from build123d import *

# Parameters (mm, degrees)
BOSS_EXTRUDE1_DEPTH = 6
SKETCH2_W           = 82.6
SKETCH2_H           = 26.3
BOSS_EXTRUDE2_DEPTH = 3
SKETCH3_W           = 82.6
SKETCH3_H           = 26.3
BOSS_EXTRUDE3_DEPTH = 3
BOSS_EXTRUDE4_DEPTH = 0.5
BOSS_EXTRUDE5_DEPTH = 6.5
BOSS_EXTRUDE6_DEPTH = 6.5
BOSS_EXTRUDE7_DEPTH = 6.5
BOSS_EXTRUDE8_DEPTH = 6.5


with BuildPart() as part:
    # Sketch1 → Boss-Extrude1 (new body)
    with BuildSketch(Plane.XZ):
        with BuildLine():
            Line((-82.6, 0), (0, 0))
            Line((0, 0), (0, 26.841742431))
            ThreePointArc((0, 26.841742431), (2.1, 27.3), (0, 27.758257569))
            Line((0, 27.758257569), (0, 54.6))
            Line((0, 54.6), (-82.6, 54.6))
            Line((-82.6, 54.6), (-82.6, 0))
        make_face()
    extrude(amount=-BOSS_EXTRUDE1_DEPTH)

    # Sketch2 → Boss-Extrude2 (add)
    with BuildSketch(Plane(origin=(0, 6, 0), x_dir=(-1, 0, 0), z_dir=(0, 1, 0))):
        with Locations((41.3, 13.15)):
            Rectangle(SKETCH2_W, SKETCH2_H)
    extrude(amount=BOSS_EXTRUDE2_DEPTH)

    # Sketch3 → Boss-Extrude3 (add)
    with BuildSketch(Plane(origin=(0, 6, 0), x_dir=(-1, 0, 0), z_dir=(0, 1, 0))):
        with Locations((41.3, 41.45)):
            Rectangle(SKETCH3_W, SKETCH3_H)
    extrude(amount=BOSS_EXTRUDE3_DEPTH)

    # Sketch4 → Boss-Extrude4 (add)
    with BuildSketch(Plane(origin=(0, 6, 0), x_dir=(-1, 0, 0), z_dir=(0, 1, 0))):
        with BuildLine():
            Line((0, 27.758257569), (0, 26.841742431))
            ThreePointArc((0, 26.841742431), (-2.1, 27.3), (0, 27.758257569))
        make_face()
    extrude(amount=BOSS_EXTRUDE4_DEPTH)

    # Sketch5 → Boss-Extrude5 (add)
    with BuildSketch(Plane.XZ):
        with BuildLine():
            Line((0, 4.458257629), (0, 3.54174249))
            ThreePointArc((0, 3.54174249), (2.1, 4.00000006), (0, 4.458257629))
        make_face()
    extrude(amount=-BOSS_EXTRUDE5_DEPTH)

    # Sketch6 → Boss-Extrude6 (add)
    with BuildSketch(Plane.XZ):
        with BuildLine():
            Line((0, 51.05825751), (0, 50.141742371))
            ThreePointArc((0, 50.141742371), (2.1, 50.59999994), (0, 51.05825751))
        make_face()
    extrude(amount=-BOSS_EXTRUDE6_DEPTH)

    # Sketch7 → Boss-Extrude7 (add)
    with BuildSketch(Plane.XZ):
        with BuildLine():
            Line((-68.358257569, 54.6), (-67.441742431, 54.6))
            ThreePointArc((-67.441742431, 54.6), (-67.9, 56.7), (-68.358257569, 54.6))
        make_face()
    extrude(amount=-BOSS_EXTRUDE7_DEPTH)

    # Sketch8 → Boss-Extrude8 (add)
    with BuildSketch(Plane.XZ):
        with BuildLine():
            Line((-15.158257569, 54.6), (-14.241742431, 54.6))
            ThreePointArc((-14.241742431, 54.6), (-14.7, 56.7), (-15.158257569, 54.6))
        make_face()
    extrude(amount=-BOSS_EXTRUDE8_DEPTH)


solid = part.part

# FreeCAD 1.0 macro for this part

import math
import FreeCAD as App
import Part
import Sketcher

V = App.Vector
Q = App.Units.Quantity


def add_polygon(sketch, points):
    """Adds a closed chain of lines whose ends are joined by coincident constraints."""
    first, n = sketch.GeometryCount, len(points)
    for a, b in zip(points, points[1:] + points[:1]):
        sketch.addGeometry(Part.LineSegment(App.Vector(*a, 0), App.Vector(*b, 0)), False)
    for i in range(n):
        sketch.addConstraint(Sketcher.Constraint("Coincident", first + i, 2, first + (i + 1) % n, 1))

doc = App.newDocument("Part")
params = doc.addObject("Spreadsheet::Sheet", "Params")
for row, (alias, value) in enumerate([
    ("sketch1_radius", "1.1 mm"),
    ("sketch1_width", "82.6 mm"),
    ("sketch1_height", "54.6 mm"),
    ("pad1_length", "6 mm"),
    ("sketch2_width", "82.6 mm"),
    ("sketch2_height", "26.3 mm"),
    ("pad2_length", "3 mm"),
    ("sketch3_width", "82.6 mm"),
    ("sketch3_height", "26.3 mm"),
    ("pad3_length", "3 mm"),
    ("sketch4_radius", "1.1 mm"),
    ("pad4_length", "0.5 mm"),
    ("sketch5_radius", "1.1 mm"),
    ("pad5_length", "6.5 mm"),
    ("sketch6_radius", "1.1 mm"),
    ("pad6_length", "6.5 mm"),
    ("sketch7_radius", "1.1 mm"),
    ("pad7_length", "6.5 mm"),
    ("sketch8_radius", "1.1 mm"),
    ("pad8_length", "6.5 mm"),
], start=1):
    params.set(f"A{row}", alias)
    params.set(f"B{row}", "=" + value)
    params.setAlias(f"B{row}", alias)

body = doc.addObject("PartDesign::Body", "Body")

sketch1 = body.newObject("Sketcher::SketchObject", "Sketch")
sketch1.AttachmentSupport = (doc.getObject("XZ_Plane"), [""])
sketch1.MapMode = "FlatFace"
sketch1.addGeometry(Part.LineSegment(V(-82.6, 0, 0), V(0, 0, 0)), False)
sketch1.addGeometry(Part.LineSegment(V(0, 0, 0), V(0, 26.8, 0)), False)
sketch1.addGeometry(Part.ArcOfCircle(Part.Circle(V(1, 27.3, 0), V(0, 0, 1), 1.1), math.radians(-155), math.radians(155)), False)
sketch1.addGeometry(Part.LineSegment(V(0, 27.8, 0), V(0, 54.6, 0)), False)
sketch1.addGeometry(Part.LineSegment(V(0, 54.6, 0), V(-82.6, 54.6, 0)), False)
sketch1.addGeometry(Part.LineSegment(V(-82.6, 54.6, 0), V(-82.6, 0, 0)), False)
sketch1.addConstraint(Sketcher.Constraint("Coincident", 0, 2, 1, 1))
sketch1.addConstraint(Sketcher.Constraint("Coincident", 1, 2, 2, 1))
sketch1.addConstraint(Sketcher.Constraint("Coincident", 2, 2, 3, 1))
sketch1.addConstraint(Sketcher.Constraint("Coincident", 3, 2, 4, 1))
sketch1.addConstraint(Sketcher.Constraint("Coincident", 4, 2, 5, 1))
sketch1.addConstraint(Sketcher.Constraint("Coincident", 5, 2, 0, 1))
sketch1.addConstraint(Sketcher.Constraint("Horizontal", 0))
sketch1.addConstraint(Sketcher.Constraint("Vertical", 1))
sketch1.addConstraint(Sketcher.Constraint("Vertical", 3))
sketch1.addConstraint(Sketcher.Constraint("Horizontal", 4))
sketch1.addConstraint(Sketcher.Constraint("Vertical", 5))
sketch1.addConstraint(Sketcher.Constraint("Coincident", 0, 2, -1, 1))
sketch1.addConstraint(Sketcher.Constraint("PointOnObject", 2, 2, -2))
sketch1.addConstraint(Sketcher.Constraint("Equal", 1, 3))
sketch1.addConstraint(Sketcher.Constraint("Radius", 2, Q("1.1 mm")))
sketch1.addConstraint(Sketcher.Constraint("DistanceX", 0, 1, 0, 2, Q("82.6 mm")))
sketch1.addConstraint(Sketcher.Constraint("DistanceY", 5, 2, 5, 1, Q("54.6 mm")))
sketch1.addConstraint(Sketcher.Constraint("DistanceX", -1, 1, 2, 3, Q("1 mm")))
sketch1.setExpression("Constraints[14]", "Params.sketch1_radius")
sketch1.setExpression("Constraints[15]", "Params.sketch1_width")
sketch1.setExpression("Constraints[16]", "Params.sketch1_height")
pad1 = body.newObject("PartDesign::Pad", "Pad")
pad1.Profile = sketch1
pad1.setExpression("Length", "Params.pad1_length")
pad1.Reversed = True

sketch2 = body.newObject("Sketcher::SketchObject", "Sketch001")
sketch2.AttachmentSupport = (doc.getObject("XZ_Plane"), [""])
sketch2.MapMode = "FlatFace"
sketch2.AttachmentOffset = App.Placement(V(0, 0, -6), App.Rotation())
add_polygon(sketch2, [(0, 26), (0, 0), (-83, 0), (-83, 26)])
sketch2.addConstraint(Sketcher.Constraint("Vertical", 0))
sketch2.addConstraint(Sketcher.Constraint("Horizontal", 1))
sketch2.addConstraint(Sketcher.Constraint("Vertical", 2))
sketch2.addConstraint(Sketcher.Constraint("Horizontal", 3))
sketch2.addConstraint(Sketcher.Constraint("Coincident", 0, 2, -1, 1))
sketch2.addConstraint(Sketcher.Constraint("DistanceX", 1, 2, 1, 1, Q("82.6 mm")))
sketch2.addConstraint(Sketcher.Constraint("DistanceY", 0, 2, 0, 1, Q("26.3 mm")))
sketch2.setExpression("Constraints[9]", "Params.sketch2_width")
sketch2.setExpression("Constraints[10]", "Params.sketch2_height")
pad2 = body.newObject("PartDesign::Pad", "Pad001")
pad2.Profile = sketch2
pad2.setExpression("Length", "Params.pad2_length")
pad2.Reversed = True

sketch3 = body.newObject("Sketcher::SketchObject", "Sketch002")
sketch3.AttachmentSupport = (doc.getObject("XZ_Plane"), [""])
sketch3.MapMode = "FlatFace"
sketch3.AttachmentOffset = App.Placement(V(0, 0, -6), App.Rotation())
add_polygon(sketch3, [(0, 55), (0, 28), (-83, 28), (-83, 55)])
sketch3.addConstraint(Sketcher.Constraint("Vertical", 0))
sketch3.addConstraint(Sketcher.Constraint("Horizontal", 1))
sketch3.addConstraint(Sketcher.Constraint("Vertical", 2))
sketch3.addConstraint(Sketcher.Constraint("Horizontal", 3))
sketch3.addConstraint(Sketcher.Constraint("PointOnObject", 0, 2, -2))
sketch3.addConstraint(Sketcher.Constraint("DistanceX", 1, 2, 1, 1, Q("82.6 mm")))
sketch3.addConstraint(Sketcher.Constraint("DistanceY", 0, 2, 0, 1, Q("26.3 mm")))
sketch3.addConstraint(Sketcher.Constraint("DistanceY", -1, 1, 0, 2, Q("28.3 mm")))
sketch3.setExpression("Constraints[9]", "Params.sketch3_width")
sketch3.setExpression("Constraints[10]", "Params.sketch3_height")
pad3 = body.newObject("PartDesign::Pad", "Pad002")
pad3.Profile = sketch3
pad3.setExpression("Length", "Params.pad3_length")
pad3.Reversed = True

sketch4 = body.newObject("Sketcher::SketchObject", "Sketch003")
sketch4.AttachmentSupport = (doc.getObject("XZ_Plane"), [""])
sketch4.MapMode = "FlatFace"
sketch4.AttachmentOffset = App.Placement(V(0, 0, -6), App.Rotation())
sketch4.addGeometry(Part.LineSegment(V(0, 26.8, 0), V(0, 27.8, 0)), False)
sketch4.addGeometry(Part.ArcOfCircle(Part.Circle(V(1, 27.3, 0), V(0, 0, 1), 1.1), math.radians(-155), math.radians(155)), False)
sketch4.addConstraint(Sketcher.Constraint("Coincident", 0, 1, 1, 1))
sketch4.addConstraint(Sketcher.Constraint("Coincident", 1, 2, 0, 2))
sketch4.addConstraint(Sketcher.Constraint("Vertical", 0))
sketch4.addConstraint(Sketcher.Constraint("PointOnObject", 0, 1, -2))
sketch4.addConstraint(Sketcher.Constraint("Radius", 1, Q("1.1 mm")))
sketch4.addConstraint(Sketcher.Constraint("DistanceX", -1, 1, 1, 3, Q("1 mm")))
sketch4.addConstraint(Sketcher.Constraint("DistanceY", -1, 1, 1, 3, Q("27.3 mm")))
sketch4.setExpression("Constraints[4]", "Params.sketch4_radius")
pad4 = body.newObject("PartDesign::Pad", "Pad003")
pad4.Profile = sketch4
pad4.setExpression("Length", "Params.pad4_length")
pad4.Reversed = True

sketch5 = body.newObject("Sketcher::SketchObject", "Sketch004")
sketch5.AttachmentSupport = (doc.getObject("XZ_Plane"), [""])
sketch5.MapMode = "FlatFace"
sketch5.addGeometry(Part.LineSegment(V(0, 4.5, 0), V(0, 3.5, 0)), False)
sketch5.addGeometry(Part.ArcOfCircle(Part.Circle(V(1, 4, 0), V(0, 0, 1), 1.1), math.radians(-155), math.radians(155)), False)
sketch5.addConstraint(Sketcher.Constraint("Coincident", 0, 1, 1, 2))
sketch5.addConstraint(Sketcher.Constraint("Coincident", 1, 1, 0, 2))
sketch5.addConstraint(Sketcher.Constraint("Vertical", 0))
sketch5.addConstraint(Sketcher.Constraint("PointOnObject", 0, 1, -2))
sketch5.addConstraint(Sketcher.Constraint("Radius", 1, Q("1.1 mm")))
sketch5.addConstraint(Sketcher.Constraint("DistanceX", -1, 1, 1, 3, Q("1 mm")))
sketch5.addConstraint(Sketcher.Constraint("DistanceY", -1, 1, 1, 3, Q("4 mm")))
sketch5.setExpression("Constraints[4]", "Params.sketch5_radius")
pad5 = body.newObject("PartDesign::Pad", "Pad004")
pad5.Profile = sketch5
pad5.setExpression("Length", "Params.pad5_length")
pad5.Reversed = True

sketch6 = body.newObject("Sketcher::SketchObject", "Sketch005")
sketch6.AttachmentSupport = (doc.getObject("XZ_Plane"), [""])
sketch6.MapMode = "FlatFace"
sketch6.addGeometry(Part.LineSegment(V(0, 51.1, 0), V(0, 50.1, 0)), False)
sketch6.addGeometry(Part.ArcOfCircle(Part.Circle(V(1, 50.6, 0), V(0, 0, 1), 1.1), math.radians(-155), math.radians(155)), False)
sketch6.addConstraint(Sketcher.Constraint("Coincident", 0, 1, 1, 2))
sketch6.addConstraint(Sketcher.Constraint("Coincident", 1, 1, 0, 2))
sketch6.addConstraint(Sketcher.Constraint("Vertical", 0))
sketch6.addConstraint(Sketcher.Constraint("PointOnObject", 0, 1, -2))
sketch6.addConstraint(Sketcher.Constraint("Radius", 1, Q("1.1 mm")))
sketch6.addConstraint(Sketcher.Constraint("DistanceX", -1, 1, 1, 3, Q("1 mm")))
sketch6.addConstraint(Sketcher.Constraint("DistanceY", -1, 1, 1, 3, Q("50.6 mm")))
sketch6.setExpression("Constraints[4]", "Params.sketch6_radius")
pad6 = body.newObject("PartDesign::Pad", "Pad005")
pad6.Profile = sketch6
pad6.setExpression("Length", "Params.pad6_length")
pad6.Reversed = True

sketch7 = body.newObject("Sketcher::SketchObject", "Sketch006")
sketch7.AttachmentSupport = (doc.getObject("XZ_Plane"), [""])
sketch7.MapMode = "FlatFace"
sketch7.addGeometry(Part.LineSegment(V(-68.4, 54.6, 0), V(-67.4, 54.6, 0)), False)
sketch7.addGeometry(Part.ArcOfCircle(Part.Circle(V(-67.9, 55.6, 0), V(0, 0, 1), 1.1), math.radians(-65), math.radians(245)), False)
sketch7.addConstraint(Sketcher.Constraint("Coincident", 0, 1, 1, 2))
sketch7.addConstraint(Sketcher.Constraint("Coincident", 1, 1, 0, 2))
sketch7.addConstraint(Sketcher.Constraint("Horizontal", 0))
sketch7.addConstraint(Sketcher.Constraint("Radius", 1, Q("1.1 mm")))
sketch7.addConstraint(Sketcher.Constraint("DistanceY", 0, 1, 1, 3, Q("1 mm")))
sketch7.addConstraint(Sketcher.Constraint("DistanceX", 1, 3, -1, 1, Q("67.9 mm")))
sketch7.addConstraint(Sketcher.Constraint("DistanceY", -1, 1, 1, 3, Q("55.6 mm")))
sketch7.setExpression("Constraints[3]", "Params.sketch7_radius")
pad7 = body.newObject("PartDesign::Pad", "Pad006")
pad7.Profile = sketch7
pad7.setExpression("Length", "Params.pad7_length")
pad7.Reversed = True

sketch8 = body.newObject("Sketcher::SketchObject", "Sketch007")
sketch8.AttachmentSupport = (doc.getObject("XZ_Plane"), [""])
sketch8.MapMode = "FlatFace"
sketch8.addGeometry(Part.LineSegment(V(-15.2, 54.6, 0), V(-14.2, 54.6, 0)), False)
sketch8.addGeometry(Part.ArcOfCircle(Part.Circle(V(-14.7, 55.6, 0), V(0, 0, 1), 1.1), math.radians(-65), math.radians(245)), False)
sketch8.addConstraint(Sketcher.Constraint("Coincident", 0, 1, 1, 2))
sketch8.addConstraint(Sketcher.Constraint("Coincident", 1, 1, 0, 2))
sketch8.addConstraint(Sketcher.Constraint("Horizontal", 0))
sketch8.addConstraint(Sketcher.Constraint("Radius", 1, Q("1.1 mm")))
sketch8.addConstraint(Sketcher.Constraint("DistanceY", 0, 1, 1, 3, Q("1 mm")))
sketch8.addConstraint(Sketcher.Constraint("DistanceX", 1, 3, -1, 1, Q("14.7 mm")))
sketch8.addConstraint(Sketcher.Constraint("DistanceY", -1, 1, 1, 3, Q("55.6 mm")))
sketch8.setExpression("Constraints[3]", "Params.sketch8_radius")
pad8 = body.newObject("PartDesign::Pad", "Pad007")
pad8.Profile = sketch8
pad8.setExpression("Length", "Params.pad8_length")
pad8.Reversed = True

doc.recompute()
